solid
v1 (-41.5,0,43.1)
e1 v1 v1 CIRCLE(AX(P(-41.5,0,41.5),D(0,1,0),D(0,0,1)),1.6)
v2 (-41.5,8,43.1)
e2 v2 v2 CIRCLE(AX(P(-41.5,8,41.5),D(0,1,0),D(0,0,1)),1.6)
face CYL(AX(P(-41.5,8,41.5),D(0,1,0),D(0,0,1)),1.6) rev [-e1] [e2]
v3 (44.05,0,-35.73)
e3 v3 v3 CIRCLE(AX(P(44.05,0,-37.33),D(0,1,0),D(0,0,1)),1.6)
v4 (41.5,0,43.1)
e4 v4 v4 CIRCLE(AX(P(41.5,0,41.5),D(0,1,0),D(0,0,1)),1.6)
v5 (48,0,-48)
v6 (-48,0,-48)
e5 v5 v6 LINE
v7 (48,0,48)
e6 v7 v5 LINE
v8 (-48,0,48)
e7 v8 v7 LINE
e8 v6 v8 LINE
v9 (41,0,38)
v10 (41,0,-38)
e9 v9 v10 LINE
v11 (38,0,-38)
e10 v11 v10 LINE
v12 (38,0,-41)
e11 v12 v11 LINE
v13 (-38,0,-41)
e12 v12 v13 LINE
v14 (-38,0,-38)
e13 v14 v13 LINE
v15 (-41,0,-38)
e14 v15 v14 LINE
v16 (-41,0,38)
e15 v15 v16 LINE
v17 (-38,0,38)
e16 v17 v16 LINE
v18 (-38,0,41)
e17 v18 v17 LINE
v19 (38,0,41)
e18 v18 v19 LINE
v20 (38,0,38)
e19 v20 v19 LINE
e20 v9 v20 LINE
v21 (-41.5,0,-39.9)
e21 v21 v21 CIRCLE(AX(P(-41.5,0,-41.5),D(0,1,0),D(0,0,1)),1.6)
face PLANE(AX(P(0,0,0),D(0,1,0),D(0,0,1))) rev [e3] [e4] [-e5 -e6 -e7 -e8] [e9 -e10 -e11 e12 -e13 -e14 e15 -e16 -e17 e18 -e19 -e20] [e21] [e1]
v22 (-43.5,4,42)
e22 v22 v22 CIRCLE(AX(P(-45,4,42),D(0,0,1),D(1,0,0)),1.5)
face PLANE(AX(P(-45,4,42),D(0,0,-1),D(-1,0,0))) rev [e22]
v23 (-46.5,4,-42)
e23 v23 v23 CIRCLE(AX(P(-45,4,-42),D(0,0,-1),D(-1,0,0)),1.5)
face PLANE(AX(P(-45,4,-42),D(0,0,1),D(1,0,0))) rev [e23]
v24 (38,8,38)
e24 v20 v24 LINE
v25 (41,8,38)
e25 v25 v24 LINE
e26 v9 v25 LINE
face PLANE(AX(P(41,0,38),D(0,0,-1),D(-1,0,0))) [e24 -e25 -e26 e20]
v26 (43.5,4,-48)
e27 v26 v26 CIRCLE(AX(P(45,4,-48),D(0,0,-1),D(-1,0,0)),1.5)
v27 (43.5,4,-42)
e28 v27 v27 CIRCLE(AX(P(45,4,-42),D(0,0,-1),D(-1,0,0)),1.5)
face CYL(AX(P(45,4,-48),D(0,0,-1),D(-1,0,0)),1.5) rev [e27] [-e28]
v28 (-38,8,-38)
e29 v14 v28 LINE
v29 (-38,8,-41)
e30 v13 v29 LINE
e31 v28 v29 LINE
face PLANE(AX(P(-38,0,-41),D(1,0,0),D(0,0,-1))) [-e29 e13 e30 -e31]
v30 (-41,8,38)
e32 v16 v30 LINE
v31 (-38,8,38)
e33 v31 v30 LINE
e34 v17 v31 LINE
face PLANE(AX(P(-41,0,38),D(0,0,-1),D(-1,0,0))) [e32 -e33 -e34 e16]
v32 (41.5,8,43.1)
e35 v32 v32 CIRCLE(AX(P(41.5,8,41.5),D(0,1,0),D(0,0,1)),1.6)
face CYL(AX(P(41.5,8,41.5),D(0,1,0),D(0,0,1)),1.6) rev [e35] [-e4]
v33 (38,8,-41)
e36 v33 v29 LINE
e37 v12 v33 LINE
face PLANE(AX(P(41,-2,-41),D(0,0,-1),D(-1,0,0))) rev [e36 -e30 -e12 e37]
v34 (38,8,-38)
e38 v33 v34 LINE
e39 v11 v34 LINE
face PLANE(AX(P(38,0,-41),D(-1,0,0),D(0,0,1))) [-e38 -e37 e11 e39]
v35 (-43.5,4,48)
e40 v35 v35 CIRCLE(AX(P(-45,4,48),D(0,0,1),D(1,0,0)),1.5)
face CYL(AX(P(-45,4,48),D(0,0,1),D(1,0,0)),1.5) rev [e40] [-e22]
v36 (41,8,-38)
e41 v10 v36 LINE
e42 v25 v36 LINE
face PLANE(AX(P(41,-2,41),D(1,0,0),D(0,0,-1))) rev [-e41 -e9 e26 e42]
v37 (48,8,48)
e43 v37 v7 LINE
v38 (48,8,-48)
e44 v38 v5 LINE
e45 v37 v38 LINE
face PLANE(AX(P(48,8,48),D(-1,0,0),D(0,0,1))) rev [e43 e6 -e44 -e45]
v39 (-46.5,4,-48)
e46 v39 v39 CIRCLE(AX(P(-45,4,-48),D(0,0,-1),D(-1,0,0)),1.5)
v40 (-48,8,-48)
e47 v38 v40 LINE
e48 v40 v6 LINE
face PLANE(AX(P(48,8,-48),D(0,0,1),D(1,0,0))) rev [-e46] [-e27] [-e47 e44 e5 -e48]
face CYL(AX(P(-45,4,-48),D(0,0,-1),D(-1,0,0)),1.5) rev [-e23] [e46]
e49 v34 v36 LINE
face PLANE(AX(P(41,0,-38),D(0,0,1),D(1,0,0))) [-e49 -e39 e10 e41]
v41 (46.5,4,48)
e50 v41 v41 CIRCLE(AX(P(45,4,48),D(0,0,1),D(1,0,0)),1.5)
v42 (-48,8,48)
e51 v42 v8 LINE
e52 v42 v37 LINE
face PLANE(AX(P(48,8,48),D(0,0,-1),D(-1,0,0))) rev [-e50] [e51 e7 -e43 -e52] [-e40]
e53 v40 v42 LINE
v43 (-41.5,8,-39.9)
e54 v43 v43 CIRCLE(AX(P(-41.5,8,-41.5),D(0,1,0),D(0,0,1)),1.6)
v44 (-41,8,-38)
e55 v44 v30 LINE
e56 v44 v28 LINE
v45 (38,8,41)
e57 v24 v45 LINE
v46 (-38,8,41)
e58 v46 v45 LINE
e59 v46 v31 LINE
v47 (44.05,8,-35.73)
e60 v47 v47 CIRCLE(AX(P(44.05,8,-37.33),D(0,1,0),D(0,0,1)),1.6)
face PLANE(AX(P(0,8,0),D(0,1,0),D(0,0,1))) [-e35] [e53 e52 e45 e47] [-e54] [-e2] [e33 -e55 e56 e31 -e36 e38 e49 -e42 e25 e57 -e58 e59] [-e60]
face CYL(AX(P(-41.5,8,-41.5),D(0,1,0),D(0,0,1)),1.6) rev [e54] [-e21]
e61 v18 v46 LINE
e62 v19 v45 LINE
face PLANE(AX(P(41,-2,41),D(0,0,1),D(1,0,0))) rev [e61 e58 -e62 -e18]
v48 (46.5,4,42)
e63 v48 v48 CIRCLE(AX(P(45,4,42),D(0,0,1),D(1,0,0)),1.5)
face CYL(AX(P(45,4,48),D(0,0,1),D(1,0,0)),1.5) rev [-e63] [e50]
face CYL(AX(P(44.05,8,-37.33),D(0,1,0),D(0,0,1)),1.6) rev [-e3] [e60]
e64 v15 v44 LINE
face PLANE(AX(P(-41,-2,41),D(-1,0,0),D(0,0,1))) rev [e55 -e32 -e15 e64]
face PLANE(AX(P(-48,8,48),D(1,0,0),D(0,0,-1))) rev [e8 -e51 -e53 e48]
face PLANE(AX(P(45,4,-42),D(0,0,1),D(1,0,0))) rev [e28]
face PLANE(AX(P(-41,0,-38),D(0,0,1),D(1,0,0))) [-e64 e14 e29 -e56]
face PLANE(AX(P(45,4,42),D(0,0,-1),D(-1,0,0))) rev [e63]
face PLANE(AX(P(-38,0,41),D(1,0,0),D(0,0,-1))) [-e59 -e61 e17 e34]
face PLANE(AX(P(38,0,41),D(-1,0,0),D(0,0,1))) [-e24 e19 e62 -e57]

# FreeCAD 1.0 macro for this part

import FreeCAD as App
import Part
import Sketcher
from FreeCAD import Vector

doc = App.newDocument("Part")
body = doc.addObject("PartDesign::Body", "Body")

sketch1 = body.newObject("Sketcher::SketchObject", "Sketch")
sketch1.AttachmentSupport = (doc.getObject("XZ_Plane"), [""])
sketch1.MapMode = "FlatFace"
sketch1.addGeometry([
    Part.LineSegment(Vector(-48, -48, 0), Vector(-48, 48, 0)),
    Part.LineSegment(Vector(-48, 48, 0), Vector(48, 48, 0)),
    Part.LineSegment(Vector(48, 48, 0), Vector(48, -48, 0)),
    Part.LineSegment(Vector(48, -48, 0), Vector(-48, -48, 0)),
    Part.LineSegment(Vector(40, 40, 0), Vector(-40, 40, 0)),
    Part.LineSegment(Vector(-40, 40, 0), Vector(-40, -40, 0)),
    Part.LineSegment(Vector(-40, -40, 0), Vector(40, -40, 0)),
    Part.LineSegment(Vector(40, -40, 0), Vector(40, 40, 0)),
], False)
sketch1.addConstraint([
    Sketcher.Constraint("Coincident", 0, 2, 1, 1),
    Sketcher.Constraint("Coincident", 1, 2, 2, 1),
    Sketcher.Constraint("Coincident", 2, 2, 3, 1),
    Sketcher.Constraint("Coincident", 3, 2, 0, 1),
    Sketcher.Constraint("Coincident", 4, 2, 5, 1),
    Sketcher.Constraint("Coincident", 5, 2, 6, 1),
    Sketcher.Constraint("Coincident", 6, 2, 7, 1),
    Sketcher.Constraint("Coincident", 7, 2, 4, 1),
    Sketcher.Constraint("Vertical", 0),
    Sketcher.Constraint("Horizontal", 1),
    Sketcher.Constraint("Vertical", 2),
    Sketcher.Constraint("Horizontal", 3),
    Sketcher.Constraint("Horizontal", 4),
    Sketcher.Constraint("Vertical", 5),
    Sketcher.Constraint("Horizontal", 6),
    Sketcher.Constraint("Vertical", 7),
    Sketcher.Constraint("Symmetric", 0, 2, 2, 2, -1, 1),
    Sketcher.Constraint("Symmetric", 4, 2, 6, 2, -1, 1),
    Sketcher.Constraint("Equal", 3, 0),
    Sketcher.Constraint("Equal", 6, 5),
    Sketcher.Constraint("DistanceX", 1, 1, 1, 2, 96.0),
    Sketcher.Constraint("DistanceX", 4, 2, 4, 1, 80.0),
])
pad1 = body.newObject("PartDesign::Pad", "Pad")
pad1.Profile = sketch1
pad1.Length = 8
pad1.Reversed = True

sketch2 = body.newObject("Sketcher::SketchObject", "Sketch001")
sketch2.AttachmentSupport = (doc.getObject("XY_Plane"), [""])
sketch2.MapMode = "FlatFace"
sketch2.AttachmentOffset = App.Placement(Vector(0, 0, 48), App.Rotation())
sketch2.addGeometry([
    Part.Circle(Vector(45, 4, 0), Vector(0, 0, 1), 1.5),
    Part.Circle(Vector(-45, 4, 0), Vector(0, 0, 1), 1.5),
], False)
sketch2.addConstraint([
    Sketcher.Constraint("Equal", 0, 1),
    Sketcher.Constraint("Symmetric", 0, 3, 1, 3, -2),
    Sketcher.Constraint("Diameter", 0, 3.0),
    Sketcher.Constraint("DistanceX", -1, 1, 0, 3, 45.0),
    Sketcher.Constraint("DistanceY", -1, 1, 0, 3, 4.0),
])
doc.recompute()
hole = body.newObject("PartDesign::Hole", "Hole")
hole.Profile = sketch2
hole.ThreadType = "None"
hole.Diameter = 3
hole.DepthType = "Dimension"
hole.Depth = 6
hole.DrillPoint = "Flat"

sketch3 = body.newObject("Sketcher::SketchObject", "Sketch002")
sketch3.AttachmentSupport = (doc.getObject("XY_Plane"), [""])
sketch3.MapMode = "FlatFace"
sketch3.AttachmentOffset = App.Placement(Vector(0, 0, -48), App.Rotation())
sketch3.addGeometry([
    Part.Circle(Vector(-45, 4, 0), Vector(0, 0, 1), 1.5),
    Part.Circle(Vector(45, 4, 0), Vector(0, 0, 1), 1.5),
], False)
sketch3.addConstraint([
    Sketcher.Constraint("Equal", 0, 1),
    Sketcher.Constraint("Symmetric", 0, 3, 1, 3, -2),
    Sketcher.Constraint("Diameter", 0, 3.0),
    Sketcher.Constraint("DistanceX", 0, 3, -1, 1, 45.0),
    Sketcher.Constraint("DistanceY", -1, 1, 0, 3, 4.0),
])
doc.recompute()
hole2 = body.newObject("PartDesign::Hole", "Hole001")
hole2.Profile = sketch3
hole2.ThreadType = "None"
hole2.Diameter = 3
hole2.DepthType = "Dimension"
hole2.Depth = 6
hole2.DrillPoint = "Flat"
hole2.Reversed = True

sketch4 = body.newObject("Sketcher::SketchObject", "Sketch003")
sketch4.AttachmentSupport = (doc.getObject("XZ_Plane"), [""])
sketch4.MapMode = "FlatFace"
sketch4.AttachmentOffset = App.Placement(Vector(0, 0, -8), App.Rotation())
sketch4.addGeometry([
    Part.LineSegment(Vector(-41, -41, 0), Vector(-41, 41, 0)),
    Part.LineSegment(Vector(-41, 41, 0), Vector(41, 41, 0)),
    Part.LineSegment(Vector(41, 41, 0), Vector(41, -41, 0)),
    Part.LineSegment(Vector(41, -41, 0), Vector(-41, -41, 0)),
], False)
sketch4.addConstraint([
    Sketcher.Constraint("Coincident", 0, 2, 1, 1),
    Sketcher.Constraint("Coincident", 1, 2, 2, 1),
    Sketcher.Constraint("Coincident", 2, 2, 3, 1),
    Sketcher.Constraint("Coincident", 3, 2, 0, 1),
    Sketcher.Constraint("Vertical", 0),
    Sketcher.Constraint("Horizontal", 1),
    Sketcher.Constraint("Vertical", 2),
    Sketcher.Constraint("Horizontal", 3),
    Sketcher.Constraint("Symmetric", 0, 2, 2, 2, -1, 1),
    Sketcher.Constraint("Equal", 3, 0),
    Sketcher.Constraint("DistanceX", 1, 1, 1, 2, 82.0),
])
pocket1 = body.newObject("PartDesign::Pocket", "Pocket")
pocket1.Profile = sketch4
pocket1.Length = 10
pocket1.Reversed = True

sketch5 = body.newObject("Sketcher::SketchObject", "Sketch004")
sketch5.AttachmentSupport = (doc.getObject("XZ_Plane"), [""])
sketch5.MapMode = "FlatFace"
sketch5.AttachmentOffset = App.Placement(Vector(0, 0, -8), App.Rotation())
sketch5.addGeometry([
    Part.LineSegment(Vector(-41, -41, 0), Vector(-41, -38, 0)),
    Part.LineSegment(Vector(-41, -38, 0), Vector(-38, -38, 0)),
    Part.LineSegment(Vector(-38, -38, 0), Vector(-38, -41, 0)),
    Part.LineSegment(Vector(-38, -41, 0), Vector(-41, -41, 0)),
    Part.LineSegment(Vector(38, -41, 0), Vector(38, -38, 0)),
    Part.LineSegment(Vector(38, -38, 0), Vector(41, -38, 0)),
    Part.LineSegment(Vector(41, -38, 0), Vector(41, -41, 0)),
    Part.LineSegment(Vector(41, -41, 0), Vector(38, -41, 0)),
    Part.LineSegment(Vector(38, 38, 0), Vector(38, 41, 0)),
    Part.LineSegment(Vector(38, 41, 0), Vector(41, 41, 0)),
    Part.LineSegment(Vector(41, 41, 0), Vector(41, 38, 0)),
    Part.LineSegment(Vector(41, 38, 0), Vector(38, 38, 0)),
    Part.LineSegment(Vector(-41, 38, 0), Vector(-41, 41, 0)),
    Part.LineSegment(Vector(-41, 41, 0), Vector(-38, 41, 0)),
    Part.LineSegment(Vector(-38, 41, 0), Vector(-38, 38, 0)),
    Part.LineSegment(Vector(-38, 38, 0), Vector(-41, 38, 0)),
], False)
sketch5.addConstraint([
    Sketcher.Constraint("Coincident", 0, 2, 1, 1),
    Sketcher.Constraint("Coincident", 1, 2, 2, 1),
    Sketcher.Constraint("Coincident", 2, 2, 3, 1),
    Sketcher.Constraint("Coincident", 3, 2, 0, 1),
    Sketcher.Constraint("Coincident", 4, 2, 5, 1),
    Sketcher.Constraint("Coincident", 5, 2, 6, 1),
    Sketcher.Constraint("Coincident", 6, 2, 7, 1),
    Sketcher.Constraint("Coincident", 7, 2, 4, 1),
    Sketcher.Constraint("Coincident", 8, 2, 9, 1),
    Sketcher.Constraint("Coincident", 9, 2, 10, 1),
    Sketcher.Constraint("Coincident", 10, 2, 11, 1),
    Sketcher.Constraint("Coincident", 11, 2, 8, 1),
    Sketcher.Constraint("Coincident", 12, 2, 13, 1),
    Sketcher.Constraint("Coincident", 13, 2, 14, 1),
    Sketcher.Constraint("Coincident", 14, 2, 15, 1),
    Sketcher.Constraint("Coincident", 15, 2, 12, 1),
    Sketcher.Constraint("Vertical", 0),
    Sketcher.Constraint("Horizontal", 1),
    Sketcher.Constraint("Vertical", 2),
    Sketcher.Constraint("Horizontal", 3),
    Sketcher.Constraint("Vertical", 4),
    Sketcher.Constraint("Horizontal", 5),
    Sketcher.Constraint("Vertical", 6),
    Sketcher.Constraint("Horizontal", 7),
    Sketcher.Constraint("Vertical", 8),
    Sketcher.Constraint("Horizontal", 9),
    Sketcher.Constraint("Vertical", 10),
    Sketcher.Constraint("Horizontal", 11),
    Sketcher.Constraint("Vertical", 12),
    Sketcher.Constraint("Horizontal", 13),
    Sketcher.Constraint("Vertical", 14),
    Sketcher.Constraint("Horizontal", 15),
    Sketcher.Constraint("Symmetric", 2, 2, 8, 2, -1, 1),
    Sketcher.Constraint("Symmetric", 0, 2, 10, 2, -1, 1),
    Sketcher.Constraint("Symmetric", 6, 2, 12, 2, -1, 1),
    Sketcher.Constraint("Symmetric", 4, 2, 14, 2, -1, 1),
    Sketcher.Constraint("Symmetric", 1, 2, 4, 2, -2),
    Sketcher.Constraint("Symmetric", 3, 2, 6, 2, -2),
    Sketcher.Constraint("Equal", 15, 0),
    Sketcher.Constraint("DistanceX", 1, 1, 1, 2, 3.0),
    Sketcher.Constraint("DistanceX", 0, 2, -1, 1, 41.0),
    Sketcher.Constraint("DistanceY", 0, 2, -1, 1, 38.0),
])
pad2 = body.newObject("PartDesign::Pad", "Pad001")
pad2.Profile = sketch5
pad2.Length = 8

sketch6 = body.newObject("Sketcher::SketchObject", "Sketch005")
sketch6.AttachmentSupport = (doc.getObject("XZ_Plane"), [""])
sketch6.MapMode = "FlatFace"
sketch6.AttachmentOffset = App.Placement(Vector(0, 0, -8), App.Rotation())
sketch6.addGeometry([
    Part.Circle(Vector(44, -37.3, 0), Vector(0, 0, 1), 1.6),
    Part.Circle(Vector(41.5, 41.5, 0), Vector(0, 0, 1), 1.6),
    Part.Circle(Vector(-41.5, 41.5, 0), Vector(0, 0, 1), 1.6),
    Part.Circle(Vector(-41.5, -41.5, 0), Vector(0, 0, 1), 1.6),
], False)
sketch6.addConstraint([
    Sketcher.Constraint("Equal", 0, 1),
    Sketcher.Constraint("Equal", 1, 2),
    Sketcher.Constraint("Equal", 2, 3),
    Sketcher.Constraint("Symmetric", 1, 3, 3, 3, -1, 1),
    Sketcher.Constraint("Symmetric", 1, 3, 2, 3, -2),
    Sketcher.Constraint("Diameter", 0, 3.2),
    Sketcher.Constraint("DistanceX", 2, 3, 1, 3, 83.0),
    Sketcher.Constraint("DistanceY", 3, 3, 2, 3, 83.0),
    Sketcher.Constraint("DistanceX", -1, 1, 0, 3, 44.05),
    Sketcher.Constraint("DistanceY", 0, 3, -1, 1, 37.33),
])
doc.recompute()
hole3 = body.newObject("PartDesign::Hole", "Hole002")
hole3.Profile = sketch6
hole3.ThreadType = "None"
hole3.Diameter = 3.2
hole3.DepthType = "ThroughAll"
hole3.Reversed = True

doc.recompute()
